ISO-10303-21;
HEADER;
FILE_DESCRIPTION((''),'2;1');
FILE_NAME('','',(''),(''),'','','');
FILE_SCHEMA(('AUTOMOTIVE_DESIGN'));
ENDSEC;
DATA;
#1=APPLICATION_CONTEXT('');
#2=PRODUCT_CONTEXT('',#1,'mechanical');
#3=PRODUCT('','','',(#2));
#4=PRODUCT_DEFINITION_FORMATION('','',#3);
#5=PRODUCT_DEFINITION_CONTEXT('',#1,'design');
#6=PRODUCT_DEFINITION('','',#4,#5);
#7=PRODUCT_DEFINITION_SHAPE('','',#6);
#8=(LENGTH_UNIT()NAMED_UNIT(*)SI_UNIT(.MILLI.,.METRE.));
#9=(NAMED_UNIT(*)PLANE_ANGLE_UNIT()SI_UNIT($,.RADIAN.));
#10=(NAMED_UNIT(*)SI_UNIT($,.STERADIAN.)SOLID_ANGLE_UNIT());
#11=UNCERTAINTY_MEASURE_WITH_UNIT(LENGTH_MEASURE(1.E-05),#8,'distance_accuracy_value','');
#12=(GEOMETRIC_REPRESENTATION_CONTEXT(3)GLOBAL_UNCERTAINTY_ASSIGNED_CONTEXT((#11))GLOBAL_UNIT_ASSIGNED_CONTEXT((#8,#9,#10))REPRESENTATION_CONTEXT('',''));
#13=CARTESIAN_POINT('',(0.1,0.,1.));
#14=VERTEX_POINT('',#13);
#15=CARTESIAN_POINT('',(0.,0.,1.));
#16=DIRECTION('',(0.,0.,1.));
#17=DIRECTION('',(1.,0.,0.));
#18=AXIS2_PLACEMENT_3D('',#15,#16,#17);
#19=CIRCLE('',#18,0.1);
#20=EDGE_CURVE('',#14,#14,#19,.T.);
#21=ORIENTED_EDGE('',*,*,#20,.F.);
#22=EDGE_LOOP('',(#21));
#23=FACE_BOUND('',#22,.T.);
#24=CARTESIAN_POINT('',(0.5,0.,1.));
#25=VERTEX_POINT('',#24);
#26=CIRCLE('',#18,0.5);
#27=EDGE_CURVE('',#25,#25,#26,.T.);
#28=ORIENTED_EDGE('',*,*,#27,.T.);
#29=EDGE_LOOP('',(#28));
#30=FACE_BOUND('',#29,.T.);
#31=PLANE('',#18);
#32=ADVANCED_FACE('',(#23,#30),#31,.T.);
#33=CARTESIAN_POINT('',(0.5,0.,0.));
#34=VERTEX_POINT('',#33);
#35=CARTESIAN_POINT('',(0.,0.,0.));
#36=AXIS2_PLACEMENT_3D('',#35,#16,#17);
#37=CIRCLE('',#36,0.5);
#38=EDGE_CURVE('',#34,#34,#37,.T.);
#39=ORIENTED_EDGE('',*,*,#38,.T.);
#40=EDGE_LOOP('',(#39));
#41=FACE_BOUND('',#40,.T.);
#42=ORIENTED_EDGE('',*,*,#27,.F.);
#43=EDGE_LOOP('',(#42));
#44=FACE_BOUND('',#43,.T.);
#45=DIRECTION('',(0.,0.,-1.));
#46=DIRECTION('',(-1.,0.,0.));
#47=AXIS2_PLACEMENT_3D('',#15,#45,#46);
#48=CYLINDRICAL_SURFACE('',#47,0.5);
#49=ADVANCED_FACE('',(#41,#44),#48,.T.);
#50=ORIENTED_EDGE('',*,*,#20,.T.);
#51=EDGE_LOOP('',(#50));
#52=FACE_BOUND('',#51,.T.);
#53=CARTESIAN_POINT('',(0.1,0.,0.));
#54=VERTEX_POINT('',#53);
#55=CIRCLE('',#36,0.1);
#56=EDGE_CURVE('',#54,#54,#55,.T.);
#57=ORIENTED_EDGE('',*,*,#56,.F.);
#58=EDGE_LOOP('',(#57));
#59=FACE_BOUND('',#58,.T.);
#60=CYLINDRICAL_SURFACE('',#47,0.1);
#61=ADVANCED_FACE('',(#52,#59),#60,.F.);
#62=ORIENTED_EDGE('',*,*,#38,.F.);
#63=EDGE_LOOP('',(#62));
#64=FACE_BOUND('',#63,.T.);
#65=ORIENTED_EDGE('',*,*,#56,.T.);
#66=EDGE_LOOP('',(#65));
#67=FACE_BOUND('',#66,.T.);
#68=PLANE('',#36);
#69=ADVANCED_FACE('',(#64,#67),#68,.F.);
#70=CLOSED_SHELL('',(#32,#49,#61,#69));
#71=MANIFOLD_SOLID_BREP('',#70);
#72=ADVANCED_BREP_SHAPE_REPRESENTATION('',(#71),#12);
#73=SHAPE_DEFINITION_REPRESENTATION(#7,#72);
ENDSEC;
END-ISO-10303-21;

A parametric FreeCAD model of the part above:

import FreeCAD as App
import Part
import Sketcher

V = App.Vector

doc = App.newDocument("Part")
body = doc.addObject("PartDesign::Body", "Body")

# Sketch on XY plane
sketch1 = doc.addObject("Sketcher::SketchObject", "Sketch")
body.addObject(sketch1)
sketch1.AttachmentSupport = (doc.XY_Plane, [""])
sketch1.MapMode = "FlatFace"
sketch1.addGeometry(Part.Circle(V(0, 0, 0), V(0, 0, 1), 0.5), False)
sketch1.addGeometry(Part.Circle(V(0, 0, 0), V(0, 0, 1), 0.1), False)
sketch1.addConstraint(Sketcher.Constraint("Coincident", 0, 3, -1, 1))
sketch1.addConstraint(Sketcher.Constraint("Coincident", 1, 3, -1, 1))
sketch1.addConstraint(Sketcher.Constraint("Diameter", 0, 1.0))
sketch1.addConstraint(Sketcher.Constraint("Diameter", 1, 0.2))
pad1 = doc.addObject("PartDesign::Pad", "Pad")
body.addObject(pad1)
pad1.Profile = sketch1
pad1.Length = 1

doc.recompute()
